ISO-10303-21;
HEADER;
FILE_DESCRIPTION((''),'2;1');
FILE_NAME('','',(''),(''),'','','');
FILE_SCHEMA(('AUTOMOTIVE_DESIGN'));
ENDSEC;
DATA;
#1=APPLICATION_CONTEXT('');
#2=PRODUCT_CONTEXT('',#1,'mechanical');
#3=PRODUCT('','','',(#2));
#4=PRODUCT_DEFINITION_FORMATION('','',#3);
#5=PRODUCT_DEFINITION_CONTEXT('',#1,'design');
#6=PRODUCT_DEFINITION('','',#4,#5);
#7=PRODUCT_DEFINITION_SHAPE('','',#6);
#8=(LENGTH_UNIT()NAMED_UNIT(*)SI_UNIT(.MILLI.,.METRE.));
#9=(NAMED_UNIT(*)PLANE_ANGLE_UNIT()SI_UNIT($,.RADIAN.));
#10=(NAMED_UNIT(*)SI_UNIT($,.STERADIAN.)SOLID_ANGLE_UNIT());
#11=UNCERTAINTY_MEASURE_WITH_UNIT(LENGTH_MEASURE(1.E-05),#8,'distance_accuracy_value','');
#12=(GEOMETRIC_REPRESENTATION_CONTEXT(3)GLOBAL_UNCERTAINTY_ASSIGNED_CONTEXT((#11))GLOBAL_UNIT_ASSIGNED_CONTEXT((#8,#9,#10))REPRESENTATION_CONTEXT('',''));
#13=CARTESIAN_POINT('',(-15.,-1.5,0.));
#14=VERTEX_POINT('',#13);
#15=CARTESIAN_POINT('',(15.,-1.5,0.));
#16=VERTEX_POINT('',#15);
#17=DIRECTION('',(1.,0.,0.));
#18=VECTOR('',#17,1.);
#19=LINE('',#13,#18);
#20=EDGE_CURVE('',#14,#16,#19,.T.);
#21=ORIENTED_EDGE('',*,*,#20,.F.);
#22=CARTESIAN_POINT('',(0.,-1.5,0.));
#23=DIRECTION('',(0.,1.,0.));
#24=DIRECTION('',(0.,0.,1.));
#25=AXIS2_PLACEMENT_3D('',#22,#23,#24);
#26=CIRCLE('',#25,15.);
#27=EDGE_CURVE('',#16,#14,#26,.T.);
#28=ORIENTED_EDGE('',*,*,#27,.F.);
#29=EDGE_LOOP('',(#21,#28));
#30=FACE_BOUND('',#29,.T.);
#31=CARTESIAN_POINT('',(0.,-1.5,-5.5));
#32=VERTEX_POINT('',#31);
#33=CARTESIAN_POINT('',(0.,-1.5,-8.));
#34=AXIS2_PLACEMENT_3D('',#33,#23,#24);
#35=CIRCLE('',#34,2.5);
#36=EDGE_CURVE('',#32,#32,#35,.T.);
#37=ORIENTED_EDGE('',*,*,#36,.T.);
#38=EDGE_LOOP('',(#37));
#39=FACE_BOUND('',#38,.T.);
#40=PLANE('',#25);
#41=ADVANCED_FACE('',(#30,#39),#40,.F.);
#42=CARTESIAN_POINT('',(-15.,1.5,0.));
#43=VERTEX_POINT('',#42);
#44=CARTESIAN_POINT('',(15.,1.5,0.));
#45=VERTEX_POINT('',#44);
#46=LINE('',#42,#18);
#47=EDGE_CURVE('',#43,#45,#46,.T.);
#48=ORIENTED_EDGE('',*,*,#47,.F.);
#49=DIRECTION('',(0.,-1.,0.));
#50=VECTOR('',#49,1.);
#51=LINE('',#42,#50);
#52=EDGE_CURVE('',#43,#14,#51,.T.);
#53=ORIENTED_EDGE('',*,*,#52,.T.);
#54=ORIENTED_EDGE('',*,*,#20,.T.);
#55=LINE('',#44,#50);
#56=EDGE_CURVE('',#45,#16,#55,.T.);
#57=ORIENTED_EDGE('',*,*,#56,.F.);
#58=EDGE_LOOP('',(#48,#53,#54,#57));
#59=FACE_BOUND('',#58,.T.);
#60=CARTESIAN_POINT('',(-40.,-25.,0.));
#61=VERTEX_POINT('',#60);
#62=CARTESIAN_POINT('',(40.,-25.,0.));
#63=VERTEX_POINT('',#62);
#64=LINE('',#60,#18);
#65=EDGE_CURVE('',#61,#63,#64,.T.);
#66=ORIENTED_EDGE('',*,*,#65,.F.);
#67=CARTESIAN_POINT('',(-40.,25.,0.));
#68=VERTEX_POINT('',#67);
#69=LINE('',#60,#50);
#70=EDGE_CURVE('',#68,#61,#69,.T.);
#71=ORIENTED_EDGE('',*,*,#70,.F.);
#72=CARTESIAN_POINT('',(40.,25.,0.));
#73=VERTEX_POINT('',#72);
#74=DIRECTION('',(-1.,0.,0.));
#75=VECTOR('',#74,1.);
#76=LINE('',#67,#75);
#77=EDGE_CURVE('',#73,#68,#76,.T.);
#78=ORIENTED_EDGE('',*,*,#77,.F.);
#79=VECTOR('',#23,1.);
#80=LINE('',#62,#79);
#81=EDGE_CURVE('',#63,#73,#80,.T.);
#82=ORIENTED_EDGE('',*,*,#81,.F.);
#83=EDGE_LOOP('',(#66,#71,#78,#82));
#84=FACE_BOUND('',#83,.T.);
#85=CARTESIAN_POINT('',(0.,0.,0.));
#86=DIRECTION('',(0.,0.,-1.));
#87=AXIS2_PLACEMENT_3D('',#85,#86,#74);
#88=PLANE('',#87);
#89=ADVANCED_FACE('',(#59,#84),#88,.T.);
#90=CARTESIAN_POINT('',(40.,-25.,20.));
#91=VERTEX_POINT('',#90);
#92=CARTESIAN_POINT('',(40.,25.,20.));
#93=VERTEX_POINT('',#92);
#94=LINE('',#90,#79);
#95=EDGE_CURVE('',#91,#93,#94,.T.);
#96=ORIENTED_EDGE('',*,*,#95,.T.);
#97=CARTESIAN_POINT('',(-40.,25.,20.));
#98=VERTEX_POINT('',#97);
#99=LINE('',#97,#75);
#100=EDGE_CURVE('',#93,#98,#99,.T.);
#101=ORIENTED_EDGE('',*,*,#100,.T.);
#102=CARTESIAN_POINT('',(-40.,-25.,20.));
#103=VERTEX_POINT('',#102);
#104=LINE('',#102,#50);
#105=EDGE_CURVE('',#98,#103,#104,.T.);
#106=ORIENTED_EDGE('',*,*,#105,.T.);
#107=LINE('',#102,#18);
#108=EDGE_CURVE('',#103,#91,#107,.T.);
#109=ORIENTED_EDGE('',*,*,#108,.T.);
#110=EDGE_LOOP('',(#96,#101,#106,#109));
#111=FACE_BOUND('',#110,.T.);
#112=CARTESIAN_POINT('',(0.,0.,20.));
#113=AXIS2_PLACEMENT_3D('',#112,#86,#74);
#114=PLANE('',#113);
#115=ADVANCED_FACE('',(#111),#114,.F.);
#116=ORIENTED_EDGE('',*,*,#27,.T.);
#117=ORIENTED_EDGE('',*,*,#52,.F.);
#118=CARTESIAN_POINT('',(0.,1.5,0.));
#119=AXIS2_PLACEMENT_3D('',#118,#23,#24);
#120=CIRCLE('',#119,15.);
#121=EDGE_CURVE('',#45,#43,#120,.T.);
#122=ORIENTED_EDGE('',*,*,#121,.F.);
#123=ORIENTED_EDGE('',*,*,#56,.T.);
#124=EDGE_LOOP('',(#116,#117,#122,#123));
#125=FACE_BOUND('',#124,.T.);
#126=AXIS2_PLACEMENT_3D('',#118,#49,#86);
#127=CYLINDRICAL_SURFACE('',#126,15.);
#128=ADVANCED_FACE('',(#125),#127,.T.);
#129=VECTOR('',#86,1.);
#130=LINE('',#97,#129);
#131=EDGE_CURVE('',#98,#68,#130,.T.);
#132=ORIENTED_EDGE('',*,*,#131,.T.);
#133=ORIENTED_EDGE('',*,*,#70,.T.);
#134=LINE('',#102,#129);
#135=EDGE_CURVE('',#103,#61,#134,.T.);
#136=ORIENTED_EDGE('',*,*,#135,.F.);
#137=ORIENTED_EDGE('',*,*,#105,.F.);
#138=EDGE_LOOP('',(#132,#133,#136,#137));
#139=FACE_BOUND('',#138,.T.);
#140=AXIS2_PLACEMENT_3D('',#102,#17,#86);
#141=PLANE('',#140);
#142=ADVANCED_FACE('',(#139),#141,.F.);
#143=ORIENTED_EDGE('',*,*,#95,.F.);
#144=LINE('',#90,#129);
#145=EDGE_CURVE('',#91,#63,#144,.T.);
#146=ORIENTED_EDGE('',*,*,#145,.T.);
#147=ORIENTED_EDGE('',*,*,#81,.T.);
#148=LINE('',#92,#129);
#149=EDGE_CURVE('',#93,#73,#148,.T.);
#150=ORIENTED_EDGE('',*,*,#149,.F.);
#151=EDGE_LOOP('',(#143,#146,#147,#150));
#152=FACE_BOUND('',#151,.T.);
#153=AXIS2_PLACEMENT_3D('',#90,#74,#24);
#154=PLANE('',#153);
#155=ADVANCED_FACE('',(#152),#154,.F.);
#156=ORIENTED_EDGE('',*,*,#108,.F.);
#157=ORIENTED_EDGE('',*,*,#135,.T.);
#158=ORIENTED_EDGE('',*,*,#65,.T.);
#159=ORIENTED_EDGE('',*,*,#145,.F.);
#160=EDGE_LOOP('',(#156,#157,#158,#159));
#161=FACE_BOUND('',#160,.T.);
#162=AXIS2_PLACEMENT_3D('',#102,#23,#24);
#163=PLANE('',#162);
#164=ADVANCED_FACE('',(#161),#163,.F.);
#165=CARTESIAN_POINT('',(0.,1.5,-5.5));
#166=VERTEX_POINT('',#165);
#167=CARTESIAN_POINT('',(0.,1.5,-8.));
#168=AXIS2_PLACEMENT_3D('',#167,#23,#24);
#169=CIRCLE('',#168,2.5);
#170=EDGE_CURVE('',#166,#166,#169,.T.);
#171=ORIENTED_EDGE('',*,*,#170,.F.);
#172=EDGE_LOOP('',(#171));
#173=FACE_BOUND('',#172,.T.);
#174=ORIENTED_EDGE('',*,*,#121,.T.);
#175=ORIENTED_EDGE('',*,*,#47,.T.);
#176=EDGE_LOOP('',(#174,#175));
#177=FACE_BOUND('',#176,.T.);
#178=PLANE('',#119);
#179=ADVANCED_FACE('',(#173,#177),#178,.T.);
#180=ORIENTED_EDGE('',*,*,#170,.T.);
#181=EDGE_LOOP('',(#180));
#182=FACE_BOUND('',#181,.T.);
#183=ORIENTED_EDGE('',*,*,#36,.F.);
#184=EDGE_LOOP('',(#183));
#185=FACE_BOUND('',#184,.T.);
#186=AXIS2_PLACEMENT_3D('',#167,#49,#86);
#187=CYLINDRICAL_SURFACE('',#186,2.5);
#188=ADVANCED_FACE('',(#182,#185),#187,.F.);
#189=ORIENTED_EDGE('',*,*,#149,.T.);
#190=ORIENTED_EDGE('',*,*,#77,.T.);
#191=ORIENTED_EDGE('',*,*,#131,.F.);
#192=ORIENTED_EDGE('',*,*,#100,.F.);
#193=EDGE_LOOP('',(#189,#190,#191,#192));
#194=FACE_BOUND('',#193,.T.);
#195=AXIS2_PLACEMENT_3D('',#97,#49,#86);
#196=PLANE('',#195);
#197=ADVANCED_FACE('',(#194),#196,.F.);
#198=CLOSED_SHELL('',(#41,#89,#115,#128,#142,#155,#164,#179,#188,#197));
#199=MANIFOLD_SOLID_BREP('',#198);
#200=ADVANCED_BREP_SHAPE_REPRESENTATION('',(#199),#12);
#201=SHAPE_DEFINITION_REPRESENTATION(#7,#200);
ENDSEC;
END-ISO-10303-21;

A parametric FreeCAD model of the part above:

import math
import FreeCAD as App
import Part
import Sketcher

doc = App.newDocument("Part")
body = doc.addObject("PartDesign::Body", "Body")

# Sketch on XY plane
sketch1 = body.newObject("Sketcher::SketchObject", "Sketch")
sketch1.AttachmentSupport = (doc.getObject("XY_Plane"), [""])
sketch1.MapMode = "FlatFace"
sketch1.addGeometry([
    Part.LineSegment(App.Vector(-40, 25, 0), App.Vector(-40, -25, 0)),
    Part.LineSegment(App.Vector(-40, -25, 0), App.Vector(40, -25, 0)),
    Part.LineSegment(App.Vector(40, -25, 0), App.Vector(40, 25, 0)),
    Part.LineSegment(App.Vector(40, 25, 0), App.Vector(-40, 25, 0)),
], False)
sketch1.addConstraint([
    Sketcher.Constraint("Coincident", 0, 2, 1, 1),
    Sketcher.Constraint("Coincident", 1, 2, 2, 1),
    Sketcher.Constraint("Coincident", 2, 2, 3, 1),
    Sketcher.Constraint("Coincident", 3, 2, 0, 1),
    Sketcher.Constraint("Vertical", 0),
    Sketcher.Constraint("Horizontal", 1),
    Sketcher.Constraint("Vertical", 2),
    Sketcher.Constraint("Horizontal", 3),
    Sketcher.Constraint("Symmetric", 0, 2, 2, 2, -1, 1),
    Sketcher.Constraint("DistanceX", 1, 1, 1, 2, 80.0),
    Sketcher.Constraint("DistanceY", 0, 2, 0, 1, 50.0),
])
pad1 = body.newObject("PartDesign::Pad", "Pad")
pad1.Profile = sketch1
pad1.Length = 20

# Sketch on XZ plane
sketch2 = body.newObject("Sketcher::SketchObject", "Sketch001")
sketch2.AttachmentSupport = (doc.getObject("XZ_Plane"), [""])
sketch2.MapMode = "FlatFace"
sketch2.addGeometry([
    Part.LineSegment(App.Vector(-15, 0, 0), App.Vector(15, 0, 0)),
    Part.ArcOfCircle(Part.Circle(App.Vector(0, 0, 0), App.Vector(0, 0, 1), 15), math.radians(180), math.radians(360)),
    Part.Circle(App.Vector(0, -8, 0), App.Vector(0, 0, 1), 2.5),
], False)
sketch2.addConstraint([
    Sketcher.Constraint("Coincident", 0, 1, 1, 1),
    Sketcher.Constraint("Coincident", 1, 2, 0, 2),
    Sketcher.Constraint("Horizontal", 0),
    Sketcher.Constraint("Coincident", 1, 3, -1, 1),
    Sketcher.Constraint("PointOnObject", 2, 3, -2),
    Sketcher.Constraint("PointOnObject", 0, 1, -1),
    Sketcher.Constraint("Diameter", 2, 5.0),
    Sketcher.Constraint("Radius", 1, 15.0),
    Sketcher.Constraint("DistanceY", 2, 3, -1, 1, 8.0),
])
pad2 = body.newObject("PartDesign::Pad", "Pad001")
pad2.Profile = sketch2
pad2.Length = 3
pad2.Midplane = True

doc.recompute()
